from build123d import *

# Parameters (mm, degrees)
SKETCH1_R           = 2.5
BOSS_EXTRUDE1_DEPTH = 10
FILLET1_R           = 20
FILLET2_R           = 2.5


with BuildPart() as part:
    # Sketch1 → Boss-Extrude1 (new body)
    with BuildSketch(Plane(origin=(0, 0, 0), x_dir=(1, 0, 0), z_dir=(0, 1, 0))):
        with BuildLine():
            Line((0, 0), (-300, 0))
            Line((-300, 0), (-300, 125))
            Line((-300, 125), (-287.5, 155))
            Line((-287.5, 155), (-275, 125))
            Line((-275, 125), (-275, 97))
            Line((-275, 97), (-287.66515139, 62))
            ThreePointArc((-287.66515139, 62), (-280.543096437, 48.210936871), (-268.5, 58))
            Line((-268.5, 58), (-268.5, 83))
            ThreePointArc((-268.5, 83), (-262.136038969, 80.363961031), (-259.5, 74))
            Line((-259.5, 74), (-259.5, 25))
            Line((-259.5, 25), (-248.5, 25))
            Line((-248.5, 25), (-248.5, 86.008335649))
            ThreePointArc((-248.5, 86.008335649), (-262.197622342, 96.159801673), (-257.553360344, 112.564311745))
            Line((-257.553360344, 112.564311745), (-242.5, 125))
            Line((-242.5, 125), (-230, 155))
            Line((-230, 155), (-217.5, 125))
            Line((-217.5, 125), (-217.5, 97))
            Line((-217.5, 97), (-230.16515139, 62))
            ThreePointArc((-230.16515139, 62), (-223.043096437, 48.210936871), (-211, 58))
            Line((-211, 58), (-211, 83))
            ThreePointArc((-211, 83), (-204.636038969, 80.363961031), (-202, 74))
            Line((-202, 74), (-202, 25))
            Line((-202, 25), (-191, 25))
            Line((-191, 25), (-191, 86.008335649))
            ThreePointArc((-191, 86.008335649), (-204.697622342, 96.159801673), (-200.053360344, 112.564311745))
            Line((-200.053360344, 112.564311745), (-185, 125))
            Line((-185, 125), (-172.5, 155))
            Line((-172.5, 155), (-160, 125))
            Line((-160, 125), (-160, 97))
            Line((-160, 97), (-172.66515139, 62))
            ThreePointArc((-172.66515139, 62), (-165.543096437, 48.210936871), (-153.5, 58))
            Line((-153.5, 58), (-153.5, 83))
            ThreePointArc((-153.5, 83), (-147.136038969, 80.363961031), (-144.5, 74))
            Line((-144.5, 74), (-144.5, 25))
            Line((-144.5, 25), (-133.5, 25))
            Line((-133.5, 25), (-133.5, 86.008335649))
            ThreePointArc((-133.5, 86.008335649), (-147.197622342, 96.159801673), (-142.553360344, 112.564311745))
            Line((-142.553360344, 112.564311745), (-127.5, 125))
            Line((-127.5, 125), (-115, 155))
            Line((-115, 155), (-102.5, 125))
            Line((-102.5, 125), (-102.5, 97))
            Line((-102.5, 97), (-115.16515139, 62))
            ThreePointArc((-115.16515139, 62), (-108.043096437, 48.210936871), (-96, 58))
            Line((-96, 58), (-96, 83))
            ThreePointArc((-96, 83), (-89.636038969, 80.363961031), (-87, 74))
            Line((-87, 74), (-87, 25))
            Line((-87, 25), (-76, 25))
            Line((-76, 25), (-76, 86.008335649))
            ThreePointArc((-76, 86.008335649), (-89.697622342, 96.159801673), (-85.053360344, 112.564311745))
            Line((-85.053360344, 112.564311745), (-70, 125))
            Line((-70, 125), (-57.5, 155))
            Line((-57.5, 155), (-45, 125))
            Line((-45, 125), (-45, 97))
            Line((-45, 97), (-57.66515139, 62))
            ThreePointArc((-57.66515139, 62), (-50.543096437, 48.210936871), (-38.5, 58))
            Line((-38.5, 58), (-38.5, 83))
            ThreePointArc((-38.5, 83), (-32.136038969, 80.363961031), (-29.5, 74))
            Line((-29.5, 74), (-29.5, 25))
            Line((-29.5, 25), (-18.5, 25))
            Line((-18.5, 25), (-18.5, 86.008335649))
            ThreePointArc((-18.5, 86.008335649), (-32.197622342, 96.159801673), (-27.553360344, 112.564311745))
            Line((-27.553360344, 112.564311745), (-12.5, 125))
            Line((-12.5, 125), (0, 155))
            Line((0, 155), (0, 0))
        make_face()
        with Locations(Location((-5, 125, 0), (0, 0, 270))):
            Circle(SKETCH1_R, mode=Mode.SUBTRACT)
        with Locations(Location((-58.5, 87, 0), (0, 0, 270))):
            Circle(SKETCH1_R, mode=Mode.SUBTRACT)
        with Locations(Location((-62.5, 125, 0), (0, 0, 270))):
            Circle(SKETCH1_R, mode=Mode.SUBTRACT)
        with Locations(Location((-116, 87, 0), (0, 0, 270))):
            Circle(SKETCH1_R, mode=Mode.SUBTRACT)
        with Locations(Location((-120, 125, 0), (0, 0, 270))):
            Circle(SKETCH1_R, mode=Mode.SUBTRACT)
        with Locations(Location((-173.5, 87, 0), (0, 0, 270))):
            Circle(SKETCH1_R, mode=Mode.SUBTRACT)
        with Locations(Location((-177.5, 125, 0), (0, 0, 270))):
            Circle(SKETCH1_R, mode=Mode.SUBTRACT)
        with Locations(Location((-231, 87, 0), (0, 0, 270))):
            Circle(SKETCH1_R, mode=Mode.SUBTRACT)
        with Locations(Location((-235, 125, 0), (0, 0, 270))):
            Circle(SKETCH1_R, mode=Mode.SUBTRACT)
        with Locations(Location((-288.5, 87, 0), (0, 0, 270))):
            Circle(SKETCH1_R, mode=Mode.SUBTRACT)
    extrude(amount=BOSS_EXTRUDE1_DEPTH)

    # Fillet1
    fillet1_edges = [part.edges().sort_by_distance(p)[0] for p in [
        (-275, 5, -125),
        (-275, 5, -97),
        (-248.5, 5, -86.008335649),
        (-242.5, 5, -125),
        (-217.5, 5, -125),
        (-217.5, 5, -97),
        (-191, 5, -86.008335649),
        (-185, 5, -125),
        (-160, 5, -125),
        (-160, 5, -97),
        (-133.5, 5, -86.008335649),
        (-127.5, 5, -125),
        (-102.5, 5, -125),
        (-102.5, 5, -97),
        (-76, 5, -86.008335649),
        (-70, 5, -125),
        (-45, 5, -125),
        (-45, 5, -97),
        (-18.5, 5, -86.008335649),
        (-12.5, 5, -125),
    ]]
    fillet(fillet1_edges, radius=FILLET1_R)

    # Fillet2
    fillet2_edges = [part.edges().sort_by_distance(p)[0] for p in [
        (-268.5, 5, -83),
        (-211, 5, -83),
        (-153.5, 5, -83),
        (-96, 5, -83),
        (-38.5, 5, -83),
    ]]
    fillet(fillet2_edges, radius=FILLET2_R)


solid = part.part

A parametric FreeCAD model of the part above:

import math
import FreeCAD as App
import Part
import Sketcher
from FreeCAD import Vector


def edges_at(feature, points):
    """Names of the edges that pass closest to the given points."""
    edges = feature.Shape.Edges
    near = lambda p: min(range(len(edges)), key=lambda i: edges[i].distToShape(Part.Vertex(*p))[0])
    return sorted({f"Edge{near(p) + 1}" for p in points})

doc = App.newDocument("Part")
body = doc.addObject("PartDesign::Body", "Body")

sketch1 = body.newObject("Sketcher::SketchObject", "Sketch")
sketch1.AttachmentSupport = (doc.getObject("XZ_Plane"), [""])
sketch1.MapMode = "FlatFace"
sketch1.addGeometry([
    Part.LineSegment(Vector(-300, 0, 0), Vector(0, 0, 0)),
    Part.LineSegment(Vector(0, 0, 0), Vector(0, -155, 0)),
    Part.LineSegment(Vector(0, -155, 0), Vector(-12.5, -125, 0)),
    Part.LineSegment(Vector(-12.5, -125, 0), Vector(-27.55336, -112.564312, 0)),
    Part.ArcOfCircle(Part.Circle(Vector(-18, -101, 0), Vector(0, 0, 1), 15), math.radians(91.910213), math.radians(230.439645)),
    Part.LineSegment(Vector(-18.5, -86.008336, 0), Vector(-18.5, -25, 0)),
    Part.LineSegment(Vector(-18.5, -25, 0), Vector(-29.5, -25, 0)),
    Part.LineSegment(Vector(-29.5, -25, 0), Vector(-29.5, -74, 0)),
    Part.ArcOfCircle(Part.Circle(Vector(-38.5, -74, 0), Vector(0, 0, 1), 9), math.radians(-90), math.radians(0)),
    Part.LineSegment(Vector(-38.5, -83, 0), Vector(-38.5, -58, 0)),
    Part.ArcOfCircle(Part.Circle(Vector(-48.5, -58, 0), Vector(0, 0, 1), 10), math.radians(0), math.radians(203.578178)),
    Part.LineSegment(Vector(-57.665151, -62, 0), Vector(-45, -97, 0)),
    Part.LineSegment(Vector(-45, -97, 0), Vector(-45, -125, 0)),
    Part.LineSegment(Vector(-45, -125, 0), Vector(-57.5, -155, 0)),
    Part.LineSegment(Vector(-57.5, -155, 0), Vector(-70, -125, 0)),
    Part.LineSegment(Vector(-70, -125, 0), Vector(-85.05336, -112.564312, 0)),
    Part.ArcOfCircle(Part.Circle(Vector(-75.5, -101, 0), Vector(0, 0, 1), 15), math.radians(91.910213), math.radians(230.439645)),
    Part.LineSegment(Vector(-76, -86.008336, 0), Vector(-76, -25, 0)),
    Part.LineSegment(Vector(-76, -25, 0), Vector(-87, -25, 0)),
    Part.LineSegment(Vector(-87, -25, 0), Vector(-87, -74, 0)),
    Part.ArcOfCircle(Part.Circle(Vector(-96, -74, 0), Vector(0, 0, 1), 9), math.radians(-90), math.radians(0)),
    Part.LineSegment(Vector(-96, -83, 0), Vector(-96, -58, 0)),
    Part.ArcOfCircle(Part.Circle(Vector(-106, -58, 0), Vector(0, 0, 1), 10), math.radians(0), math.radians(203.578178)),
    Part.LineSegment(Vector(-115.165151, -62, 0), Vector(-102.5, -97, 0)),
    Part.LineSegment(Vector(-102.5, -97, 0), Vector(-102.5, -125, 0)),
    Part.LineSegment(Vector(-102.5, -125, 0), Vector(-115, -155, 0)),
    Part.LineSegment(Vector(-115, -155, 0), Vector(-127.5, -125, 0)),
    Part.LineSegment(Vector(-127.5, -125, 0), Vector(-142.55336, -112.564312, 0)),
    Part.ArcOfCircle(Part.Circle(Vector(-133, -101, 0), Vector(0, 0, 1), 15), math.radians(91.910213), math.radians(230.439645)),
    Part.LineSegment(Vector(-133.5, -86.008336, 0), Vector(-133.5, -25, 0)),
    Part.LineSegment(Vector(-133.5, -25, 0), Vector(-144.5, -25, 0)),
    Part.LineSegment(Vector(-144.5, -25, 0), Vector(-144.5, -74, 0)),
    Part.ArcOfCircle(Part.Circle(Vector(-153.5, -74, 0), Vector(0, 0, 1), 9), math.radians(-90), math.radians(0)),
    Part.LineSegment(Vector(-153.5, -83, 0), Vector(-153.5, -58, 0)),
    Part.ArcOfCircle(Part.Circle(Vector(-163.5, -58, 0), Vector(0, 0, 1), 10), math.radians(0), math.radians(203.578178)),
    Part.LineSegment(Vector(-172.665151, -62, 0), Vector(-160, -97, 0)),
    Part.LineSegment(Vector(-160, -97, 0), Vector(-160, -125, 0)),
    Part.LineSegment(Vector(-160, -125, 0), Vector(-172.5, -155, 0)),
    Part.LineSegment(Vector(-172.5, -155, 0), Vector(-185, -125, 0)),
    Part.LineSegment(Vector(-185, -125, 0), Vector(-200.05336, -112.564312, 0)),
    Part.ArcOfCircle(Part.Circle(Vector(-190.5, -101, 0), Vector(0, 0, 1), 15), math.radians(91.910213), math.radians(230.439645)),
    Part.LineSegment(Vector(-191, -86.008336, 0), Vector(-191, -25, 0)),
    Part.LineSegment(Vector(-191, -25, 0), Vector(-202, -25, 0)),
    Part.LineSegment(Vector(-202, -25, 0), Vector(-202, -74, 0)),
    Part.ArcOfCircle(Part.Circle(Vector(-211, -74, 0), Vector(0, 0, 1), 9), math.radians(-90), math.radians(0)),
    Part.LineSegment(Vector(-211, -83, 0), Vector(-211, -58, 0)),
    Part.ArcOfCircle(Part.Circle(Vector(-221, -58, 0), Vector(0, 0, 1), 10), math.radians(0), math.radians(203.578178)),
    Part.LineSegment(Vector(-230.165151, -62, 0), Vector(-217.5, -97, 0)),
    Part.LineSegment(Vector(-217.5, -97, 0), Vector(-217.5, -125, 0)),
    Part.LineSegment(Vector(-217.5, -125, 0), Vector(-230, -155, 0)),
    Part.LineSegment(Vector(-230, -155, 0), Vector(-242.5, -125, 0)),
    Part.LineSegment(Vector(-242.5, -125, 0), Vector(-257.55336, -112.564312, 0)),
    Part.ArcOfCircle(Part.Circle(Vector(-248, -101, 0), Vector(0, 0, 1), 15), math.radians(91.910213), math.radians(230.439645)),
    Part.LineSegment(Vector(-248.5, -86.008336, 0), Vector(-248.5, -25, 0)),
    Part.LineSegment(Vector(-248.5, -25, 0), Vector(-259.5, -25, 0)),
    Part.LineSegment(Vector(-259.5, -25, 0), Vector(-259.5, -74, 0)),
    Part.ArcOfCircle(Part.Circle(Vector(-268.5, -74, 0), Vector(0, 0, 1), 9), math.radians(-90), math.radians(0)),
    Part.LineSegment(Vector(-268.5, -83, 0), Vector(-268.5, -58, 0)),
    Part.ArcOfCircle(Part.Circle(Vector(-278.5, -58, 0), Vector(0, 0, 1), 10), math.radians(0), math.radians(203.578178)),
    Part.LineSegment(Vector(-287.665151, -62, 0), Vector(-275, -97, 0)),
    Part.LineSegment(Vector(-275, -97, 0), Vector(-275, -125, 0)),
    Part.LineSegment(Vector(-275, -125, 0), Vector(-287.5, -155, 0)),
    Part.LineSegment(Vector(-287.5, -155, 0), Vector(-300, -125, 0)),
    Part.LineSegment(Vector(-300, -125, 0), Vector(-300, 0, 0)),
    Part.Circle(Vector(-58.5, -87, 0), Vector(0, 0, 1), 2.5),
    Part.Circle(Vector(-116, -87, 0), Vector(0, 0, 1), 2.5),
    Part.Circle(Vector(-173.5, -87, 0), Vector(0, 0, 1), 2.5),
    Part.Circle(Vector(-231, -87, 0), Vector(0, 0, 1), 2.5),
    Part.Circle(Vector(-288.5, -87, 0), Vector(0, 0, 1), 2.5),
    Part.Circle(Vector(-5, -125, 0), Vector(0, 0, 1), 2.5),
    Part.Circle(Vector(-62.5, -125, 0), Vector(0, 0, 1), 2.5),
    Part.Circle(Vector(-120, -125, 0), Vector(0, 0, 1), 2.5),
    Part.Circle(Vector(-177.5, -125, 0), Vector(0, 0, 1), 2.5),
    Part.Circle(Vector(-235, -125, 0), Vector(0, 0, 1), 2.5),
], False)
sketch1.addConstraint([
    Sketcher.Constraint("Coincident", 0, 2, 1, 1),
    Sketcher.Constraint("Coincident", 1, 2, 2, 1),
    Sketcher.Constraint("Coincident", 2, 2, 3, 1),
    Sketcher.Constraint("Tangent", 3, 2, 4, 2),
    Sketcher.Constraint("Coincident", 4, 1, 5, 1),
    Sketcher.Constraint("Coincident", 5, 2, 6, 1),
    Sketcher.Constraint("Coincident", 6, 2, 7, 1),
    Sketcher.Constraint("Tangent", 7, 2, 8, 2),
    Sketcher.Constraint("Coincident", 8, 1, 9, 1),
    Sketcher.Constraint("Tangent", 9, 2, 10, 1),
    Sketcher.Constraint("Coincident", 10, 2, 11, 1),
    Sketcher.Constraint("Coincident", 11, 2, 12, 1),
    Sketcher.Constraint("Coincident", 12, 2, 13, 1),
    Sketcher.Constraint("Coincident", 13, 2, 14, 1),
    Sketcher.Constraint("Coincident", 14, 2, 15, 1),
    Sketcher.Constraint("Tangent", 15, 2, 16, 2),
    Sketcher.Constraint("Coincident", 16, 1, 17, 1),
    Sketcher.Constraint("Coincident", 17, 2, 18, 1),
    Sketcher.Constraint("Coincident", 18, 2, 19, 1),
    Sketcher.Constraint("Tangent", 19, 2, 20, 2),
    Sketcher.Constraint("Coincident", 20, 1, 21, 1),
    Sketcher.Constraint("Tangent", 21, 2, 22, 1),
    Sketcher.Constraint("Coincident", 22, 2, 23, 1),
    Sketcher.Constraint("Coincident", 23, 2, 24, 1),
    Sketcher.Constraint("Coincident", 24, 2, 25, 1),
    Sketcher.Constraint("Coincident", 25, 2, 26, 1),
    Sketcher.Constraint("Coincident", 26, 2, 27, 1),
    Sketcher.Constraint("Tangent", 27, 2, 28, 2),
    Sketcher.Constraint("Coincident", 28, 1, 29, 1),
    Sketcher.Constraint("Coincident", 29, 2, 30, 1),
    Sketcher.Constraint("Coincident", 30, 2, 31, 1),
    Sketcher.Constraint("Tangent", 31, 2, 32, 2),
    Sketcher.Constraint("Coincident", 32, 1, 33, 1),
    Sketcher.Constraint("Tangent", 33, 2, 34, 1),
    Sketcher.Constraint("Coincident", 34, 2, 35, 1),
    Sketcher.Constraint("Coincident", 35, 2, 36, 1),
    Sketcher.Constraint("Coincident", 36, 2, 37, 1),
    Sketcher.Constraint("Coincident", 37, 2, 38, 1),
    Sketcher.Constraint("Coincident", 38, 2, 39, 1),
    Sketcher.Constraint("Tangent", 39, 2, 40, 2),
    Sketcher.Constraint("Coincident", 40, 1, 41, 1),
    Sketcher.Constraint("Coincident", 41, 2, 42, 1),
    Sketcher.Constraint("Coincident", 42, 2, 43, 1),
    Sketcher.Constraint("Tangent", 43, 2, 44, 2),
    Sketcher.Constraint("Coincident", 44, 1, 45, 1),
    Sketcher.Constraint("Tangent", 45, 2, 46, 1),
    Sketcher.Constraint("Coincident", 46, 2, 47, 1),
    Sketcher.Constraint("Coincident", 47, 2, 48, 1),
    Sketcher.Constraint("Coincident", 48, 2, 49, 1),
    Sketcher.Constraint("Coincident", 49, 2, 50, 1),
    Sketcher.Constraint("Coincident", 50, 2, 51, 1),
    Sketcher.Constraint("Tangent", 51, 2, 52, 2),
    Sketcher.Constraint("Coincident", 52, 1, 53, 1),
    Sketcher.Constraint("Coincident", 53, 2, 54, 1),
    Sketcher.Constraint("Coincident", 54, 2, 55, 1),
    Sketcher.Constraint("Tangent", 55, 2, 56, 2),
    Sketcher.Constraint("Coincident", 56, 1, 57, 1),
    Sketcher.Constraint("Tangent", 57, 2, 58, 1),
    Sketcher.Constraint("Coincident", 58, 2, 59, 1),
    Sketcher.Constraint("Coincident", 59, 2, 60, 1),
    Sketcher.Constraint("Coincident", 60, 2, 61, 1),
    Sketcher.Constraint("Coincident", 61, 2, 62, 1),
    Sketcher.Constraint("Coincident", 62, 2, 63, 1),
    Sketcher.Constraint("Coincident", 63, 2, 0, 1),
    Sketcher.Constraint("Horizontal", 0),
    Sketcher.Constraint("Vertical", 1),
    Sketcher.Constraint("Vertical", 5),
    Sketcher.Constraint("Horizontal", 6),
    Sketcher.Constraint("Vertical", 7),
    Sketcher.Constraint("Vertical", 9),
    Sketcher.Constraint("Vertical", 12),
    Sketcher.Constraint("Vertical", 17),
    Sketcher.Constraint("Horizontal", 18),
    Sketcher.Constraint("Vertical", 19),
    Sketcher.Constraint("Vertical", 21),
    Sketcher.Constraint("Vertical", 24),
    Sketcher.Constraint("Vertical", 29),
    Sketcher.Constraint("Horizontal", 30),
    Sketcher.Constraint("Vertical", 31),
    Sketcher.Constraint("Vertical", 33),
    Sketcher.Constraint("Vertical", 36),
    Sketcher.Constraint("Vertical", 41),
    Sketcher.Constraint("Horizontal", 42),
    Sketcher.Constraint("Vertical", 43),
    Sketcher.Constraint("Vertical", 45),
    Sketcher.Constraint("Vertical", 48),
    Sketcher.Constraint("Vertical", 53),
    Sketcher.Constraint("Horizontal", 54),
    Sketcher.Constraint("Vertical", 55),
    Sketcher.Constraint("Vertical", 57),
    Sketcher.Constraint("Vertical", 60),
    Sketcher.Constraint("Vertical", 63),
    Sketcher.Constraint("Coincident", 0, 2, -1, 1),
    Sketcher.Constraint("Equal", 4, 16),
    Sketcher.Constraint("Equal", 8, 20),
    Sketcher.Constraint("Equal", 10, 22),
    Sketcher.Constraint("Equal", 16, 28),
    Sketcher.Constraint("Equal", 20, 32),
    Sketcher.Constraint("Equal", 22, 34),
    Sketcher.Constraint("Equal", 28, 40),
    Sketcher.Constraint("Equal", 32, 44),
    Sketcher.Constraint("Equal", 34, 46),
    Sketcher.Constraint("Equal", 40, 52),
    Sketcher.Constraint("Equal", 44, 56),
    Sketcher.Constraint("Equal", 46, 58),
    Sketcher.Constraint("Equal", 64, 65),
    Sketcher.Constraint("Equal", 65, 66),
    Sketcher.Constraint("Equal", 66, 67),
    Sketcher.Constraint("Equal", 67, 68),
    Sketcher.Constraint("Equal", 68, 69),
    Sketcher.Constraint("Equal", 69, 70),
    Sketcher.Constraint("Equal", 70, 71),
    Sketcher.Constraint("Equal", 71, 72),
    Sketcher.Constraint("Equal", 72, 73),
    Sketcher.Constraint("Parallel", 2, 14),
    Sketcher.Constraint("Parallel", 3, 15),
    Sketcher.Constraint("Parallel", 11, 23),
    Sketcher.Constraint("Parallel", 13, 25),
    Sketcher.Constraint("Parallel", 14, 26),
    Sketcher.Constraint("Parallel", 15, 27),
    Sketcher.Constraint("Parallel", 23, 35),
    Sketcher.Constraint("Parallel", 25, 37),
    Sketcher.Constraint("Parallel", 26, 38),
    Sketcher.Constraint("Parallel", 27, 39),
    Sketcher.Constraint("Parallel", 35, 47),
    Sketcher.Constraint("Parallel", 37, 49),
    Sketcher.Constraint("Parallel", 38, 50),
    Sketcher.Constraint("Parallel", 39, 51),
    Sketcher.Constraint("Parallel", 47, 59),
    Sketcher.Constraint("Parallel", 49, 61),
    Sketcher.Constraint("Parallel", 50, 62),
    Sketcher.Constraint("Horizontal", 4, 3, 16, 3),
    Sketcher.Constraint("Horizontal", 8, 3, 20, 3),
    Sketcher.Constraint("Horizontal", 10, 3, 22, 3),
    Sketcher.Constraint("Horizontal", 16, 3, 28, 3),
    Sketcher.Constraint("Horizontal", 20, 3, 32, 3),
    Sketcher.Constraint("Horizontal", 22, 3, 34, 3),
    Sketcher.Constraint("Horizontal", 28, 3, 40, 3),
    Sketcher.Constraint("Horizontal", 32, 3, 44, 3),
    Sketcher.Constraint("Horizontal", 34, 3, 46, 3),
    Sketcher.Constraint("Horizontal", 40, 3, 52, 3),
    Sketcher.Constraint("Horizontal", 44, 3, 56, 3),
    Sketcher.Constraint("Horizontal", 46, 3, 58, 3),
    Sketcher.Constraint("Horizontal", 64, 3, 65, 3),
    Sketcher.Constraint("Horizontal", 65, 3, 66, 3),
    Sketcher.Constraint("Horizontal", 66, 3, 67, 3),
    Sketcher.Constraint("Horizontal", 67, 3, 68, 3),
    Sketcher.Constraint("Horizontal", 69, 3, 70, 3),
    Sketcher.Constraint("Horizontal", 70, 3, 71, 3),
    Sketcher.Constraint("Horizontal", 71, 3, 72, 3),
    Sketcher.Constraint("Horizontal", 72, 3, 73, 3),
    Sketcher.Constraint("Horizontal", 73, 3, 2, 2),
    Sketcher.Constraint("Horizontal", 2, 2, 12, 2),
    Sketcher.Constraint("Horizontal", 1, 2, 13, 2),
    Sketcher.Constraint("Horizontal", 12, 2, 14, 2),
    Sketcher.Constraint("Horizontal", 4, 1, 16, 1),
    Sketcher.Constraint("Horizontal", 6, 2, 17, 2),
    Sketcher.Constraint("Horizontal", 10, 2, 22, 2),
    Sketcher.Constraint("Horizontal", 11, 2, 23, 2),
    Sketcher.Constraint("Horizontal", 14, 2, 24, 2),
    Sketcher.Constraint("Horizontal", 13, 2, 25, 2),
    Sketcher.Constraint("Horizontal", 24, 2, 26, 2),
    Sketcher.Constraint("Horizontal", 16, 1, 28, 1),
    Sketcher.Constraint("Horizontal", 18, 2, 29, 2),
    Sketcher.Constraint("Horizontal", 22, 2, 34, 2),
    Sketcher.Constraint("Horizontal", 23, 2, 35, 2),
    Sketcher.Constraint("Horizontal", 26, 2, 36, 2),
    Sketcher.Constraint("Horizontal", 25, 2, 37, 2),
    Sketcher.Constraint("Horizontal", 36, 2, 38, 2),
    Sketcher.Constraint("Horizontal", 28, 1, 40, 1),
    Sketcher.Constraint("Horizontal", 30, 2, 41, 2),
    Sketcher.Constraint("Horizontal", 34, 2, 46, 2),
    Sketcher.Constraint("Horizontal", 35, 2, 47, 2),
    Sketcher.Constraint("Horizontal", 38, 2, 48, 2),
    Sketcher.Constraint("Horizontal", 37, 2, 49, 2),
    Sketcher.Constraint("Horizontal", 48, 2, 50, 2),
    Sketcher.Constraint("Horizontal", 40, 1, 52, 1),
    Sketcher.Constraint("Horizontal", 42, 2, 53, 2),
    Sketcher.Constraint("Horizontal", 46, 2, 58, 2),
    Sketcher.Constraint("Horizontal", 47, 2, 59, 2),
    Sketcher.Constraint("Horizontal", 50, 2, 60, 2),
    Sketcher.Constraint("Horizontal", 49, 2, 61, 2),
    Sketcher.Constraint("Horizontal", 60, 2, 62, 2),
    Sketcher.Constraint("Equal", 6, 18),
    Sketcher.Constraint("Equal", 18, 30),
    Sketcher.Constraint("Equal", 30, 42),
    Sketcher.Constraint("Equal", 42, 54),
    Sketcher.Constraint("Equal", 2, 13),
    Sketcher.Constraint("Diameter", 64, 5.0),
    Sketcher.Constraint("Radius", 4, 15.0),
    Sketcher.Constraint("Radius", 8, 9.0),
    Sketcher.Constraint("Radius", 10, 10.0),
    Sketcher.Constraint("DistanceX", 0, 1, 0, 2, 300.0),
    Sketcher.Constraint("DistanceX", 6, 2, 6, 1, 11.0),
    Sketcher.Constraint("DistanceY", 1, 2, 1, 1, 155.0),
    Sketcher.Constraint("DistanceY", 7, 2, 7, 1, 49.0),
    Sketcher.Constraint("DistanceY", 9, 1, 9, 2, 25.0),
    Sketcher.Constraint("DistanceY", 12, 2, 12, 1, 28.0),
    Sketcher.Constraint("DistanceY", 63, 1, 63, 2, 125.0),
    Sketcher.Constraint("DistanceX", 4, 3, -1, 1, 18.0),
    Sketcher.Constraint("DistanceY", 4, 3, -1, 1, 101.0),
    Sketcher.Constraint("DistanceY", 8, 3, -1, 1, 74.0),
    Sketcher.Constraint("DistanceX", 20, 3, -1, 1, 96.0),
    Sketcher.Constraint("DistanceX", 22, 3, -1, 1, 106.0),
    Sketcher.Constraint("DistanceX", 28, 3, -1, 1, 133.0),
    Sketcher.Constraint("DistanceX", 44, 3, -1, 1, 211.0),
    Sketcher.Constraint("DistanceX", 46, 3, -1, 1, 221.0),
    Sketcher.Constraint("DistanceY", 64, 3, -1, 1, 87.0),
    Sketcher.Constraint("DistanceX", 65, 3, -1, 1, 116.0),
    Sketcher.Constraint("DistanceX", 67, 3, -1, 1, 231.0),
    Sketcher.Constraint("DistanceX", 69, 3, -1, 1, 5.0),
    Sketcher.Constraint("DistanceX", 71, 3, -1, 1, 120.0),
    Sketcher.Constraint("DistanceX", 73, 3, -1, 1, 235.0),
    Sketcher.Constraint("DistanceY", 10, 2, -1, 1, 62.0),
    Sketcher.Constraint("DistanceX", 11, 2, -1, 1, 45.0),
    Sketcher.Constraint("DistanceX", 14, 2, -1, 1, 70.0),
    Sketcher.Constraint("DistanceX", 64, 3, -1, 1, 58.5),
    Sketcher.Constraint("DistanceX", 66, 3, -1, 1, 173.5),
    Sketcher.Constraint("DistanceX", 68, 3, -1, 1, 288.5),
    Sketcher.Constraint("DistanceX", 70, 3, -1, 1, 62.5),
    Sketcher.Constraint("DistanceX", 72, 3, -1, 1, 177.5),
])
pad1 = body.newObject("PartDesign::Pad", "Pad")
pad1.Profile = sketch1
pad1.Length = 10
pad1.Reversed = True
doc.recompute()

fillet = body.newObject("PartDesign::Fillet", "Fillet")
fillet.Base = (pad1, edges_at(pad1, [
    (-275, 5, -125),
    (-275, 5, -97),
    (-248.5, 5, -86.008),
    (-242.5, 5, -125),
    (-217.5, 5, -125),
    (-217.5, 5, -97),
    (-191, 5, -86.008),
    (-185, 5, -125),
    (-160, 5, -125),
    (-160, 5, -97),
    (-133.5, 5, -86.008),
    (-127.5, 5, -125),
    (-102.5, 5, -125),
    (-102.5, 5, -97),
    (-76, 5, -86.008),
    (-70, 5, -125),
    (-45, 5, -125),
    (-45, 5, -97),
    (-18.5, 5, -86.008),
    (-12.5, 5, -125),
]))
fillet.Radius = 20
doc.recompute()

fillet2 = body.newObject("PartDesign::Fillet", "Fillet001")
fillet2.Base = (fillet, edges_at(fillet, [
    (-268.5, 5, -83),
    (-211, 5, -83),
    (-153.5, 5, -83),
    (-96, 5, -83),
    (-38.5, 5, -83),
]))
fillet2.Radius = 2.5

doc.recompute()
